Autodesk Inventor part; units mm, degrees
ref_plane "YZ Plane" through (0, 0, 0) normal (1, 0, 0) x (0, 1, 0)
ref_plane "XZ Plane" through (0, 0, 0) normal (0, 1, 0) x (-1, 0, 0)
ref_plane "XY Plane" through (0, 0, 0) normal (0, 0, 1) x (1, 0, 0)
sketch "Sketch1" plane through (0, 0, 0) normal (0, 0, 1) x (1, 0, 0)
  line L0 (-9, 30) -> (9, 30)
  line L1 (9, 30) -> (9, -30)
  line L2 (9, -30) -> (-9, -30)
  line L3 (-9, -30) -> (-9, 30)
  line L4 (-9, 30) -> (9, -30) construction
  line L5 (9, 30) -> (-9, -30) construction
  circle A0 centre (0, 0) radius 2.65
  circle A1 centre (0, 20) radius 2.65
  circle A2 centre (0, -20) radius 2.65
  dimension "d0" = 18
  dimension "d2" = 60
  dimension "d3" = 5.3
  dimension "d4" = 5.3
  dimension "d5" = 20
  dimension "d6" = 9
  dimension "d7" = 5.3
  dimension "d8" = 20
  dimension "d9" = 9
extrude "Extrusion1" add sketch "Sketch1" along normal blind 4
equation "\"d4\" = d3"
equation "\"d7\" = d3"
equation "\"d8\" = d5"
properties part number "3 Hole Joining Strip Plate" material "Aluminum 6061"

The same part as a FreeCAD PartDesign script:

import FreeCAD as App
import Part
import Sketcher


def add_polygon(sketch, points):
    """Adds a closed chain of lines whose ends are joined by coincident constraints."""
    first, n = sketch.GeometryCount, len(points)
    for a, b in zip(points, points[1:] + points[:1]):
        sketch.addGeometry(Part.LineSegment(App.Vector(*a, 0), App.Vector(*b, 0)), False)
    for i in range(n):
        sketch.addConstraint(Sketcher.Constraint("Coincident", first + i, 2, first + (i + 1) % n, 1))

doc = App.newDocument("Part")
params = doc.addObject("Spreadsheet::Sheet", "Params")
for row, (alias, value) in enumerate([
    ("sketch1_diameter", "5.3 mm"),
    ("sketch1_width", "18 mm"),
    ("sketch1_height", "60 mm"),
    ("pad1_length", "4 mm"),
], start=1):
    params.set(f"A{row}", alias)
    params.set(f"B{row}", "=" + value)
    params.setAlias(f"B{row}", alias)

body = doc.addObject("PartDesign::Body", "Body")

sketch1 = body.newObject("Sketcher::SketchObject", "Sketch")
sketch1.AttachmentSupport = (doc.getObject("XY_Plane"), [""])
sketch1.MapMode = "FlatFace"
add_polygon(sketch1, [(9, 30), (-9, 30), (-9, -30), (9, -30)])
sketch1.addGeometry(Part.Circle(App.Vector(0, -20, 0), App.Vector(0, 0, 1), 2.6), False)
sketch1.addGeometry(Part.Circle(App.Vector(0, 0, 0), App.Vector(0, 0, 1), 2.6), False)
sketch1.addGeometry(Part.Circle(App.Vector(0, 20, 0), App.Vector(0, 0, 1), 2.6), False)
sketch1.addConstraint([
    Sketcher.Constraint("Horizontal", 0),
    Sketcher.Constraint("Vertical", 1),
    Sketcher.Constraint("Horizontal", 2),
    Sketcher.Constraint("Vertical", 3),
    Sketcher.Constraint("Coincident", 5, 3, -1, 1),
    Sketcher.Constraint("Equal", 4, 5),
    Sketcher.Constraint("Equal", 5, 6),
    Sketcher.Constraint("Symmetric", 4, 3, 6, 3, -1, 1),
    Sketcher.Constraint("Symmetric", 0, 2, 2, 2, -1, 1),
    Sketcher.Constraint("PointOnObject", 4, 3, -2),
    Sketcher.Constraint("Diameter", 4, 5.3),
    Sketcher.Constraint("DistanceX", 0, 2, 0, 1, 18.0),
    Sketcher.Constraint("DistanceY", 1, 2, 1, 1, 60.0),
    Sketcher.Constraint("DistanceY", 4, 3, -1, 1, 20.0),
])
sketch1.setExpression("Constraints[14]", "Params.sketch1_diameter")
sketch1.setExpression("Constraints[15]", "Params.sketch1_width")
sketch1.setExpression("Constraints[16]", "Params.sketch1_height")
pad1 = body.newObject("PartDesign::Pad", "Pad")
pad1.Profile = sketch1
pad1.setExpression("Length", "Params.pad1_length")

doc.recompute()
